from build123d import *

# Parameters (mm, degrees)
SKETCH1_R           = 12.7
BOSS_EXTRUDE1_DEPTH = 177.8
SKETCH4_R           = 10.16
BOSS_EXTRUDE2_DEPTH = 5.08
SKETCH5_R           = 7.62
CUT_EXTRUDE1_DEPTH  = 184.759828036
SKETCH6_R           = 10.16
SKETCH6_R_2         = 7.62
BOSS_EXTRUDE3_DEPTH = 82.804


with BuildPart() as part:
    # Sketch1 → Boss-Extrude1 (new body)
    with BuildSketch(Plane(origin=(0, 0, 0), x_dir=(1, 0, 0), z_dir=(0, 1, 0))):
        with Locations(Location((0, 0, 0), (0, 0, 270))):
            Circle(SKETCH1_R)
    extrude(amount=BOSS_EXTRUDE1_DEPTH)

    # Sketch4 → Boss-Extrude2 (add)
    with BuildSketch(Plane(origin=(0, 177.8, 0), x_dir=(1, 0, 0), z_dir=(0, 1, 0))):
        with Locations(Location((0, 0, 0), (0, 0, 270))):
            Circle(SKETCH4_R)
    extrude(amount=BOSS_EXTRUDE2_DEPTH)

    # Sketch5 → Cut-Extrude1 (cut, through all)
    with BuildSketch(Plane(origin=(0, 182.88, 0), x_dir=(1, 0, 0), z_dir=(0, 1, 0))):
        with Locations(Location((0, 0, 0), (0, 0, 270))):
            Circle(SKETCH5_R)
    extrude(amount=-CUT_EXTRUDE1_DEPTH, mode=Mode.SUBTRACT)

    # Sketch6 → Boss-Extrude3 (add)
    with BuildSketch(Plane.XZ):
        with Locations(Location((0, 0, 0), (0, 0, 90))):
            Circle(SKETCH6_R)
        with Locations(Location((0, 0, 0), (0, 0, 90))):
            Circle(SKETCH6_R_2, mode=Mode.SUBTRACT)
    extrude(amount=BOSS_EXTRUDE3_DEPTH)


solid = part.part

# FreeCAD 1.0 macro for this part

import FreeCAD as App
import Part
import Sketcher

V = App.Vector
Q = App.Units.Quantity

doc = App.newDocument("Part")
body = doc.addObject("PartDesign::Body", "Body")

# Sketch on XZ plane
sketch1 = body.newObject("Sketcher::SketchObject", "Sketch")
sketch1.AttachmentSupport = (doc.getObject("XZ_Plane"), [""])
sketch1.MapMode = "FlatFace"
sketch1.addGeometry(Part.Circle(V(0, 0, 0), V(0, 0, 1), 13), False)
sketch1.addConstraint(Sketcher.Constraint("Coincident", 0, 3, -1, 1))
sketch1.addConstraint(Sketcher.Constraint("Diameter", 0, Q("1 in")))
pad1 = body.newObject("PartDesign::Pad", "Pad")
pad1.Profile = sketch1
pad1.Length = Q("7 in")
pad1.Reversed = True

# Sketch on XZ plane
sketch2 = body.newObject("Sketcher::SketchObject", "Sketch001")
sketch2.AttachmentSupport = (doc.getObject("XZ_Plane"), [""])
sketch2.MapMode = "FlatFace"
sketch2.AttachmentOffset = App.Placement(V(0, 0, -7 * 25.4), App.Rotation())
sketch2.addGeometry(Part.Circle(V(0, 0, 0), V(0, 0, 1), 10), False)
sketch2.addConstraint(Sketcher.Constraint("Coincident", 0, 3, -1, 1))
sketch2.addConstraint(Sketcher.Constraint("Diameter", 0, Q("0.8 in")))
pad2 = body.newObject("PartDesign::Pad", "Pad001")
pad2.Profile = sketch2
pad2.Length = Q("0.2 in")
pad2.Reversed = True

# Sketch on XZ plane
sketch3 = body.newObject("Sketcher::SketchObject", "Sketch002")
sketch3.AttachmentSupport = (doc.getObject("XZ_Plane"), [""])
sketch3.MapMode = "FlatFace"
sketch3.AttachmentOffset = App.Placement(V(0, 0, -7.2 * 25.4), App.Rotation())
sketch3.addGeometry(Part.Circle(V(0, 0, 0), V(0, 0, 1), 8), False)
sketch3.addConstraint(Sketcher.Constraint("Coincident", 0, 3, -1, 1))
sketch3.addConstraint(Sketcher.Constraint("Diameter", 0, Q("0.6 in")))
pocket1 = body.newObject("PartDesign::Pocket", "Pocket")
pocket1.Profile = sketch3
pocket1.Type = "ThroughAll"
pocket1.Reversed = True

# Sketch on XZ plane
sketch4 = body.newObject("Sketcher::SketchObject", "Sketch003")
sketch4.AttachmentSupport = (doc.getObject("XZ_Plane"), [""])
sketch4.MapMode = "FlatFace"
sketch4.addGeometry(Part.Circle(V(0, 0, 0), V(0, 0, 1), 10), False)
sketch4.addGeometry(Part.Circle(V(0, 0, 0), V(0, 0, 1), 8), False)
sketch4.addConstraint(Sketcher.Constraint("Coincident", 0, 3, -1, 1))
sketch4.addConstraint(Sketcher.Constraint("Coincident", 1, 3, -1, 1))
sketch4.addConstraint(Sketcher.Constraint("Diameter", 0, Q("0.8 in")))
sketch4.addConstraint(Sketcher.Constraint("Diameter", 1, Q("0.6 in")))
pad3 = body.newObject("PartDesign::Pad", "Pad002")
pad3.Profile = sketch4
pad3.Length = Q("3.26 in")

doc.recompute()
